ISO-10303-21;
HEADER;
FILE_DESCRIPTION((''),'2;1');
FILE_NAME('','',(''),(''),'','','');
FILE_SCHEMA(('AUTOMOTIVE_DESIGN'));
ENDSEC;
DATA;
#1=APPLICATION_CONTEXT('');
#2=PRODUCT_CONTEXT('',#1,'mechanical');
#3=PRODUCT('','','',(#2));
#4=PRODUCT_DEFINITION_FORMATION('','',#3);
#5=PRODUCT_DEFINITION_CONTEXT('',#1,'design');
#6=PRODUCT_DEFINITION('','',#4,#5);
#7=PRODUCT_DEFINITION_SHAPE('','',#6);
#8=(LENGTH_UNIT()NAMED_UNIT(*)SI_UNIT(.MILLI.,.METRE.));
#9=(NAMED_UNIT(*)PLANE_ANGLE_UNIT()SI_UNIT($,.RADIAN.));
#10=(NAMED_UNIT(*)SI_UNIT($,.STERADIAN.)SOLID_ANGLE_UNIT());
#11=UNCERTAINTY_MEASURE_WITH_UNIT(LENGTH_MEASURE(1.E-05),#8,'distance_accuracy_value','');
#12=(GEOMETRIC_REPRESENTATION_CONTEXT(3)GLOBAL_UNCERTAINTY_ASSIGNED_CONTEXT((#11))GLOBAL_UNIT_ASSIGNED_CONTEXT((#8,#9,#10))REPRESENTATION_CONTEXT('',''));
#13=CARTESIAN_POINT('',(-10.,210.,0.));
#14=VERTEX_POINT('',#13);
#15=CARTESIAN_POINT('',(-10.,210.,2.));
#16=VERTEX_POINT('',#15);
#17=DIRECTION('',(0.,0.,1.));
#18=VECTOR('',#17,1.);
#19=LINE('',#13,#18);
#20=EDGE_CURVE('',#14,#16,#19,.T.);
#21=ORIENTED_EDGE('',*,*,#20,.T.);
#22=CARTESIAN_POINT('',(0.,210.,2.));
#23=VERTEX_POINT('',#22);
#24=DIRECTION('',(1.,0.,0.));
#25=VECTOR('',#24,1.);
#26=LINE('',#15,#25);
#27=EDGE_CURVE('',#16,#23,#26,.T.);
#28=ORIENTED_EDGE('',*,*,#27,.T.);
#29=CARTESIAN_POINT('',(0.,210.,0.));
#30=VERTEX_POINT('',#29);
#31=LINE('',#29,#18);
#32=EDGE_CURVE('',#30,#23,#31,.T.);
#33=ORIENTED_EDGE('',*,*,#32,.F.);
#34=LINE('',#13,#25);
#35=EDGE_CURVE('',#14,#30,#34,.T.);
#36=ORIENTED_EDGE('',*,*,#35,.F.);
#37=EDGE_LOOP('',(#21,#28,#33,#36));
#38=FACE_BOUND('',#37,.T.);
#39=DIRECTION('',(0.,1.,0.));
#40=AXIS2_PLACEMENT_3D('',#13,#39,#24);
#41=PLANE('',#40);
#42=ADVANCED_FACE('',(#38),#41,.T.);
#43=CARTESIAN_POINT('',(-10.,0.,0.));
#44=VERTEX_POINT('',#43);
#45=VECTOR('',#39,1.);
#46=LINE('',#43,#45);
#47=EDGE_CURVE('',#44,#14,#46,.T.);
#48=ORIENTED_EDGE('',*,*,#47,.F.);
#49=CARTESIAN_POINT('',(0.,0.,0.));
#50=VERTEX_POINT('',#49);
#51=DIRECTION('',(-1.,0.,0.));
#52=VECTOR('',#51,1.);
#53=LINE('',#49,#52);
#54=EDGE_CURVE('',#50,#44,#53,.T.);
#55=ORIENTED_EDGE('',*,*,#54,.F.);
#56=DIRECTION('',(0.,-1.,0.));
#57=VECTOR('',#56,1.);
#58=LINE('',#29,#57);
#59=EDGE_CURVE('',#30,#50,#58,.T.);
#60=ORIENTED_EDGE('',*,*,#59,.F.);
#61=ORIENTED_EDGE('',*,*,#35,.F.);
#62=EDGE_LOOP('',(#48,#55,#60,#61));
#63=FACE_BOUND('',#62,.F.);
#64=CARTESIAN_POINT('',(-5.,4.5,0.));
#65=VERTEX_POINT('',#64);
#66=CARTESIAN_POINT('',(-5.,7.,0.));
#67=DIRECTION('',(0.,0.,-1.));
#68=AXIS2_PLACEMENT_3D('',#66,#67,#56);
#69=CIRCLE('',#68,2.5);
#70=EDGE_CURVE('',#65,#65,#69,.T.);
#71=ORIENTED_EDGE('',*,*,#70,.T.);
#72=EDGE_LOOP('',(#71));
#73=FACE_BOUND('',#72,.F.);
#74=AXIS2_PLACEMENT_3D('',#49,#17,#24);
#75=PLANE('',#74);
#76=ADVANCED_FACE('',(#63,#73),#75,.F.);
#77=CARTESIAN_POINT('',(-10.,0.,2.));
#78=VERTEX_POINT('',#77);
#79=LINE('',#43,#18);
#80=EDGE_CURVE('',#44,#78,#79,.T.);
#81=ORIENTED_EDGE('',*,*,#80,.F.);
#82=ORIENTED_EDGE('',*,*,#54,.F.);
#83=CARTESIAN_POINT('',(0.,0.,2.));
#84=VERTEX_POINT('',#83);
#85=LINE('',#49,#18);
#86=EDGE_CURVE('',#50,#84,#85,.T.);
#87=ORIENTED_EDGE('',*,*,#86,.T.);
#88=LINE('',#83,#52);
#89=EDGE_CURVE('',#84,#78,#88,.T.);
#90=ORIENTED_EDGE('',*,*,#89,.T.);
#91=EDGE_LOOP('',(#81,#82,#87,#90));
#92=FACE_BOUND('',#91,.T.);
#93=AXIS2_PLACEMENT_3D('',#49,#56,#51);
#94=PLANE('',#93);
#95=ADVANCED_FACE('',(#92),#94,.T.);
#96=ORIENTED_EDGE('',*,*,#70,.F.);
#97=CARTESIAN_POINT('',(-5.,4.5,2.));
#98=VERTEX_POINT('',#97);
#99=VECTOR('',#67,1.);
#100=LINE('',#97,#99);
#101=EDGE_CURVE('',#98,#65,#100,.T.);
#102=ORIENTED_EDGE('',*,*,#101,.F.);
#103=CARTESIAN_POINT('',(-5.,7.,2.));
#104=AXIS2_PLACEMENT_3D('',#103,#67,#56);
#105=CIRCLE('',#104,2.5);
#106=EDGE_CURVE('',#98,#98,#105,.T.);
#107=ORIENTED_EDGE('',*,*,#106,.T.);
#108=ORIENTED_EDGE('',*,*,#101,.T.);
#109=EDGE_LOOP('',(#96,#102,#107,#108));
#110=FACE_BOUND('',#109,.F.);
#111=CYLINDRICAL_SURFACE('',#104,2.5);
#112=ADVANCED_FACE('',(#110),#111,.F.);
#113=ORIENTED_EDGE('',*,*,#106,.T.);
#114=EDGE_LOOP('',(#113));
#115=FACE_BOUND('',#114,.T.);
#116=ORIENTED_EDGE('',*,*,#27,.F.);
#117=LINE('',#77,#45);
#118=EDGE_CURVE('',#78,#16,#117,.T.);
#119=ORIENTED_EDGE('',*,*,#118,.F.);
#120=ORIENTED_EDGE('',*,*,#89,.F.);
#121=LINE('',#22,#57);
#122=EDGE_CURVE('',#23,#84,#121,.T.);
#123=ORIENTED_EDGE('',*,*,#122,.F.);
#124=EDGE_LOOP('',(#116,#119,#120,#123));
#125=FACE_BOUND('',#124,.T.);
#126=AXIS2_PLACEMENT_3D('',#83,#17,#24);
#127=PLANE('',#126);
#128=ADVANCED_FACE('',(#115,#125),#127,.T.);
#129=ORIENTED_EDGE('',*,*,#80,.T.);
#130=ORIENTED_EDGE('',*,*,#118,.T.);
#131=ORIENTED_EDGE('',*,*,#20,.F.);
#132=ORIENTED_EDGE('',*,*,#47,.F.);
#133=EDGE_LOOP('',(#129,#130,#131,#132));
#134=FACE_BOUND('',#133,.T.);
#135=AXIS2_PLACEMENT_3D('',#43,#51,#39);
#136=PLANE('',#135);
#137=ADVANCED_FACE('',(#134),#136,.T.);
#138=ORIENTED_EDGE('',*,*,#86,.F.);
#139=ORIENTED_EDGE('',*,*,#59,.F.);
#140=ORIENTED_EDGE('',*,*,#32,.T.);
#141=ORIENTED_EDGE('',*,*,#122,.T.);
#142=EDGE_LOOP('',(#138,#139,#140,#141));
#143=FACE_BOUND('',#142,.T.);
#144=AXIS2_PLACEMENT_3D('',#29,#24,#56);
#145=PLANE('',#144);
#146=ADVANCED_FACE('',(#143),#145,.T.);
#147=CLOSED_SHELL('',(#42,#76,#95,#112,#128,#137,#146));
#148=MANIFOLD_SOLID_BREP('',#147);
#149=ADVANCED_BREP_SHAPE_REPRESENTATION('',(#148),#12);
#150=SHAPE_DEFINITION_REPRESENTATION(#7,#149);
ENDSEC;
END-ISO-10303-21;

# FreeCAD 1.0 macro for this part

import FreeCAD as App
import Part
import Sketcher
from FreeCAD import Vector
Q = App.Units.Quantity

doc = App.newDocument("Part")
body = doc.addObject("PartDesign::Body", "Body")

# Sketch on XY plane
sketch1 = doc.addObject("Sketcher::SketchObject", "Sketch")
body.addObject(sketch1)
sketch1.AttachmentSupport = (doc.XY_Plane, [""])
sketch1.MapMode = "FlatFace"
sketch1.addGeometry([
    Part.LineSegment(Vector(-10, 0, 0), Vector(0, 0, 0)),
    Part.LineSegment(Vector(0, 0, 0), Vector(0, 210, 0)),
    Part.LineSegment(Vector(0, 210, 0), Vector(-10, 210, 0)),
    Part.LineSegment(Vector(-10, 210, 0), Vector(-10, 0, 0)),
], False)
sketch1.addConstraint([
    Sketcher.Constraint("Coincident", 0, 2, 1, 1),
    Sketcher.Constraint("Coincident", 1, 2, 2, 1),
    Sketcher.Constraint("Coincident", 2, 2, 3, 1),
    Sketcher.Constraint("Coincident", 3, 2, 0, 1),
    Sketcher.Constraint("Horizontal", 0),
    Sketcher.Constraint("Vertical", 1),
    Sketcher.Constraint("Horizontal", 2),
    Sketcher.Constraint("Vertical", 3),
    Sketcher.Constraint("Coincident", 0, 2, -1, 1),
    Sketcher.Constraint("DistanceX", 0, 1, 0, 2, Q("10 mm")),
    Sketcher.Constraint("DistanceY", 1, 1, 1, 2, Q("210 mm")),
])
pad1 = doc.addObject("PartDesign::Pad", "Pad")
body.addObject(pad1)
pad1.Profile = sketch1
pad1.Length = 2

# Sketch on XY plane
sketch2 = doc.addObject("Sketcher::SketchObject", "Sketch001")
body.addObject(sketch2)
sketch2.AttachmentSupport = (doc.XY_Plane, [""])
sketch2.MapMode = "FlatFace"
sketch2.AttachmentOffset = App.Placement(Vector(0, 0, 2), App.Rotation())
sketch2.addGeometry(Part.Circle(Vector(-5, 7, 0), Vector(0, 0, 1), 2.5), False)
sketch2.addConstraint([
    Sketcher.Constraint("Diameter", 0, Q("5 mm")),
    Sketcher.Constraint("DistanceX", 0, 3, -1, 1, Q("5 mm")),
    Sketcher.Constraint("DistanceY", -1, 1, 0, 3, Q("7 mm")),
])
doc.recompute()
hole = doc.addObject("PartDesign::Hole", "Hole")
body.addObject(hole)
hole.Profile = sketch2
hole.ThreadType = "None"
hole.Diameter = 5
hole.DepthType = "Dimension"
hole.Depth = 5
hole.DrillPoint = "Flat"

doc.recompute()
